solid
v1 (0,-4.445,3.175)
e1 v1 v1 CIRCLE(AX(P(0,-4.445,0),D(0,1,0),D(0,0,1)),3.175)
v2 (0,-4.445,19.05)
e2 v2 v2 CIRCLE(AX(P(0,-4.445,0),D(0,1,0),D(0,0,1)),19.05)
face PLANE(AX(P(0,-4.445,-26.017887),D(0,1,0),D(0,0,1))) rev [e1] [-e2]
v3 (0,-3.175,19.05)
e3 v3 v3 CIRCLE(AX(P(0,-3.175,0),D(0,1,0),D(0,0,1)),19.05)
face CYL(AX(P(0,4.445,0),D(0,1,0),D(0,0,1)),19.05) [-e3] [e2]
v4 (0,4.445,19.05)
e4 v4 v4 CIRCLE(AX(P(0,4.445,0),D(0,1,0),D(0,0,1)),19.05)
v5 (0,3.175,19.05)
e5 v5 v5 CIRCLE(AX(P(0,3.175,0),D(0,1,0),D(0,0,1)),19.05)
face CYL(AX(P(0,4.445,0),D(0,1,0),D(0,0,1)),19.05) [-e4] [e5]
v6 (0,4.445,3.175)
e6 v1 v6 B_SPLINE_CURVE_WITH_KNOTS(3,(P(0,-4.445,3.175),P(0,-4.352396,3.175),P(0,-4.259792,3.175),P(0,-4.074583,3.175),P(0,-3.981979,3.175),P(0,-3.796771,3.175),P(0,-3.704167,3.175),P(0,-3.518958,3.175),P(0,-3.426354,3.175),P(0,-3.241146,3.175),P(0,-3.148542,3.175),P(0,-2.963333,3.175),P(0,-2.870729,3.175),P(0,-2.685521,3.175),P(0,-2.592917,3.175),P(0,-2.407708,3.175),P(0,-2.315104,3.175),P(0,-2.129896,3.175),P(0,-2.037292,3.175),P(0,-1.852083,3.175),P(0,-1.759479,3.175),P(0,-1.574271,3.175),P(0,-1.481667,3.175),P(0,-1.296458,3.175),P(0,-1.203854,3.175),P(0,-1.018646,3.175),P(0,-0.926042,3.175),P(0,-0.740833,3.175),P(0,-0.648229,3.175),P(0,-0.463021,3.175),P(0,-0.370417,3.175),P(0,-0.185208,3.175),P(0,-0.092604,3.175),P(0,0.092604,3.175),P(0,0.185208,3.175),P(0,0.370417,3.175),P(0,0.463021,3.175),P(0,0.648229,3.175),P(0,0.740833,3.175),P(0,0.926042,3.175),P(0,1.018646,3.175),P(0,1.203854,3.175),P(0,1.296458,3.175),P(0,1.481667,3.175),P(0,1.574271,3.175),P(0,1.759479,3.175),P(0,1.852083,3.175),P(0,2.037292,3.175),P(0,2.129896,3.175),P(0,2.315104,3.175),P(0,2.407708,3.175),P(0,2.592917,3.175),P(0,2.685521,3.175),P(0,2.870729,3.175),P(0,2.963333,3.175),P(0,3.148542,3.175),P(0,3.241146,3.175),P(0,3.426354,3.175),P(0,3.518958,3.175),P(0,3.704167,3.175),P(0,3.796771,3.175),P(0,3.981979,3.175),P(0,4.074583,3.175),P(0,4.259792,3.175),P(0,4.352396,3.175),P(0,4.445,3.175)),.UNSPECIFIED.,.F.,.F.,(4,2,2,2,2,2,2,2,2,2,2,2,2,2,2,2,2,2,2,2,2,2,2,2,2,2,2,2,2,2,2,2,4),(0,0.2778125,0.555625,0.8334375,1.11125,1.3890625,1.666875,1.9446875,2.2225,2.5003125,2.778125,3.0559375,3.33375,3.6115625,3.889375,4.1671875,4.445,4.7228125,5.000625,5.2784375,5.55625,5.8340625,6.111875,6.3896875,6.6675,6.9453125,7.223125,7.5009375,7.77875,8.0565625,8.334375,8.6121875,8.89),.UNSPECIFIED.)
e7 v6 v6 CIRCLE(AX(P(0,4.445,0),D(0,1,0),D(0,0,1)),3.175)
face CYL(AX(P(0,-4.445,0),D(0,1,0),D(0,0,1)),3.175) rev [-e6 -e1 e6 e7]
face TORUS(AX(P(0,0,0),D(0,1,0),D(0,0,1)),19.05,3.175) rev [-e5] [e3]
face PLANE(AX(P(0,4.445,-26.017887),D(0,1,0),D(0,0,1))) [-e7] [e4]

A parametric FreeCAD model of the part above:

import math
import FreeCAD as App
import Part
import Sketcher
from FreeCAD import Vector
Q = App.Units.Quantity

doc = App.newDocument("Part")
body = doc.addObject("PartDesign::Body", "Body")

# Sketch on YZ plane
sketch1 = body.newObject("Sketcher::SketchObject", "Sketch")
sketch1.AttachmentSupport = (doc.getObject("YZ_Plane"), [""])
sketch1.MapMode = "FlatFace"
sketch1.addGeometry([
    Part.ArcOfCircle(Part.Circle(Vector(0, -19.05, 0), Vector(0, 0, 1), 3.175), math.radians(0), math.radians(180)),  # 0
    Part.LineSegment(Vector(3.175, -19.05, 0), Vector(4.445, -19.05, 0)),  # 1
    Part.LineSegment(Vector(4.445, -19.05, 0), Vector(4.445, 0, 0)),  # 2
    Part.LineSegment(Vector(4.445, 0, 0), Vector(-4.445, 0, 0)),  # 3
    Part.LineSegment(Vector(-4.445, 0, 0), Vector(-4.445, -19.05, 0)),  # 4
    Part.LineSegment(Vector(-4.445, -19.05, 0), Vector(-3.175, -19.05, 0)),  # 5
], False)
sketch1.addConstraint([
    Sketcher.Constraint("Coincident", 0, 1, 1, 1),
    Sketcher.Constraint("Coincident", 1, 2, 2, 1),
    Sketcher.Constraint("Coincident", 2, 2, 3, 1),
    Sketcher.Constraint("Coincident", 3, 2, 4, 1),
    Sketcher.Constraint("Coincident", 4, 2, 5, 1),
    Sketcher.Constraint("Coincident", 5, 2, 0, 2),
    Sketcher.Constraint("Horizontal", 1),
    Sketcher.Constraint("Vertical", 2),
    Sketcher.Constraint("Horizontal", 3),
    Sketcher.Constraint("Vertical", 4),
    Sketcher.Constraint("Horizontal", 5),
    Sketcher.Constraint("Symmetric", 2, 2, 3, 2, -1, 1),
    Sketcher.Constraint("Symmetric", 0, 1, 5, 2, -2),
    Sketcher.Constraint("Radius", 0, Q("0.125 in")),
    Sketcher.Constraint("DistanceX", 1, 1, 1, 2, Q("0.05 in")),
    Sketcher.Constraint("DistanceY", 2, 1, 2, 2, Q("0.75 in")),
    Sketcher.Constraint("DistanceY", 0, 3, -1, 1, Q("0.75 in")),
])
revolution = body.newObject("PartDesign::Revolution", "Revolution")
revolution.Profile = sketch1
revolution.ReferenceAxis = (sketch1, ["H_Axis"])
revolution.Angle = 360

# Sketch on XZ plane
sketch2 = body.newObject("Sketcher::SketchObject", "Sketch001")
sketch2.AttachmentSupport = (doc.getObject("XZ_Plane"), [""])
sketch2.MapMode = "FlatFace"
sketch2.AttachmentOffset = App.Placement(Vector(0, 0, -0.175 * 25.4), App.Rotation())
sketch2.addGeometry(Part.Circle(Vector(0, 0, 0), Vector(0, 0, 1), 3.175), False)
sketch2.addConstraint([
    Sketcher.Constraint("Coincident", 0, 3, -1, 1),
    Sketcher.Constraint("Diameter", 0, Q("0.25 in")),
])
pocket1 = body.newObject("PartDesign::Pocket", "Pocket")
pocket1.Profile = sketch2
pocket1.Type = "ThroughAll"
pocket1.Reversed = True

doc.recompute()
